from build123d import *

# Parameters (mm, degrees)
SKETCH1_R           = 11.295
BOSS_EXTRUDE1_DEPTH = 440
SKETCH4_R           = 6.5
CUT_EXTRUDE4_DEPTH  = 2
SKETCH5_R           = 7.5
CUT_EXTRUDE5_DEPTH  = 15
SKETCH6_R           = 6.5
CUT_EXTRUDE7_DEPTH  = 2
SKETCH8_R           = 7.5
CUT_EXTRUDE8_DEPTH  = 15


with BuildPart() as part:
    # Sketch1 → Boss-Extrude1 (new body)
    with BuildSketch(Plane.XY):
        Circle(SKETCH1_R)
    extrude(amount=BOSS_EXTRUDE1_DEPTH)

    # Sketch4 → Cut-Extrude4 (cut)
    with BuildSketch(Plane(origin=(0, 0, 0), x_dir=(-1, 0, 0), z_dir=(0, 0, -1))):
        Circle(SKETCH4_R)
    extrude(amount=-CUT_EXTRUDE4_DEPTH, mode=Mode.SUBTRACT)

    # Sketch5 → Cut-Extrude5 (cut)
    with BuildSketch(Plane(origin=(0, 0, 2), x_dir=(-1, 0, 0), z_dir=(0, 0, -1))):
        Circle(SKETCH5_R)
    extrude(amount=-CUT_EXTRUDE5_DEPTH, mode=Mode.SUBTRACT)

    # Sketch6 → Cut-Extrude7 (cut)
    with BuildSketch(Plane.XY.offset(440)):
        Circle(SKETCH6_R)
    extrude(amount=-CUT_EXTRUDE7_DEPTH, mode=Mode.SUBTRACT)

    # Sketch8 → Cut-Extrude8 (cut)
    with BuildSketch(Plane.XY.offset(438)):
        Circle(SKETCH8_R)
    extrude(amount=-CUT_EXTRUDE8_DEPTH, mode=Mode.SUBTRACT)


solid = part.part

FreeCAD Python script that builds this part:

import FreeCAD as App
import Part
import Sketcher

V = App.Vector
Q = App.Units.Quantity

doc = App.newDocument("Part")
body = doc.addObject("PartDesign::Body", "Body")

# Sketch on XY plane
sketch1 = body.newObject("Sketcher::SketchObject", "Sketch")
sketch1.AttachmentSupport = (doc.getObject("XY_Plane"), [""])
sketch1.MapMode = "FlatFace"
sketch1.addGeometry(Part.Circle(V(0, 0, 0), V(0, 0, 1), 11), False)
sketch1.addConstraint([
    Sketcher.Constraint("Coincident", 0, 3, -1, 1),
    Sketcher.Constraint("Diameter", 0, Q("22.59 mm")),
])
pad1 = body.newObject("PartDesign::Pad", "Pad")
pad1.Profile = sketch1
pad1.Length = 440

# Sketch on XY plane
sketch2 = body.newObject("Sketcher::SketchObject", "Sketch001")
sketch2.AttachmentSupport = (doc.getObject("XY_Plane"), [""])
sketch2.MapMode = "FlatFace"
sketch2.addGeometry(Part.Circle(V(0, 0, 0), V(0, 0, 1), 6), False)
sketch2.addConstraint([
    Sketcher.Constraint("Coincident", 0, 3, -1, 1),
    Sketcher.Constraint("Diameter", 0, Q("13 mm")),
])
pocket1 = body.newObject("PartDesign::Pocket", "Pocket")
pocket1.Profile = sketch2
pocket1.Length = 2
pocket1.Reversed = True

# Sketch on XY plane
sketch3 = body.newObject("Sketcher::SketchObject", "Sketch002")
sketch3.AttachmentSupport = (doc.getObject("XY_Plane"), [""])
sketch3.MapMode = "FlatFace"
sketch3.AttachmentOffset = App.Placement(V(0, 0, 2), App.Rotation())
sketch3.addGeometry(Part.Circle(V(0, 0, 0), V(0, 0, 1), 8), False)
sketch3.addConstraint([
    Sketcher.Constraint("Coincident", 0, 3, -1, 1),
    Sketcher.Constraint("Diameter", 0, Q("15 mm")),
])
pocket2 = body.newObject("PartDesign::Pocket", "Pocket001")
pocket2.Profile = sketch3
pocket2.Length = 15
pocket2.Reversed = True

# Sketch on XY plane
sketch4 = body.newObject("Sketcher::SketchObject", "Sketch003")
sketch4.AttachmentSupport = (doc.getObject("XY_Plane"), [""])
sketch4.MapMode = "FlatFace"
sketch4.AttachmentOffset = App.Placement(V(0, 0, 440), App.Rotation())
sketch4.addGeometry(Part.Circle(V(0, 0, 0), V(0, 0, 1), 6), False)
sketch4.addConstraint([
    Sketcher.Constraint("Coincident", 0, 3, -1, 1),
    Sketcher.Constraint("Diameter", 0, Q("13 mm")),
])
pocket3 = body.newObject("PartDesign::Pocket", "Pocket002")
pocket3.Profile = sketch4
pocket3.Length = 2

# Sketch on XY plane
sketch5 = body.newObject("Sketcher::SketchObject", "Sketch004")
sketch5.AttachmentSupport = (doc.getObject("XY_Plane"), [""])
sketch5.MapMode = "FlatFace"
sketch5.AttachmentOffset = App.Placement(V(0, 0, 438), App.Rotation())
sketch5.addGeometry(Part.Circle(V(0, 0, 0), V(0, 0, 1), 8), False)
sketch5.addConstraint([
    Sketcher.Constraint("Coincident", 0, 3, -1, 1),
    Sketcher.Constraint("Diameter", 0, Q("15 mm")),
])
pocket4 = body.newObject("PartDesign::Pocket", "Pocket003")
pocket4.Profile = sketch5
pocket4.Length = 15

doc.recompute()
